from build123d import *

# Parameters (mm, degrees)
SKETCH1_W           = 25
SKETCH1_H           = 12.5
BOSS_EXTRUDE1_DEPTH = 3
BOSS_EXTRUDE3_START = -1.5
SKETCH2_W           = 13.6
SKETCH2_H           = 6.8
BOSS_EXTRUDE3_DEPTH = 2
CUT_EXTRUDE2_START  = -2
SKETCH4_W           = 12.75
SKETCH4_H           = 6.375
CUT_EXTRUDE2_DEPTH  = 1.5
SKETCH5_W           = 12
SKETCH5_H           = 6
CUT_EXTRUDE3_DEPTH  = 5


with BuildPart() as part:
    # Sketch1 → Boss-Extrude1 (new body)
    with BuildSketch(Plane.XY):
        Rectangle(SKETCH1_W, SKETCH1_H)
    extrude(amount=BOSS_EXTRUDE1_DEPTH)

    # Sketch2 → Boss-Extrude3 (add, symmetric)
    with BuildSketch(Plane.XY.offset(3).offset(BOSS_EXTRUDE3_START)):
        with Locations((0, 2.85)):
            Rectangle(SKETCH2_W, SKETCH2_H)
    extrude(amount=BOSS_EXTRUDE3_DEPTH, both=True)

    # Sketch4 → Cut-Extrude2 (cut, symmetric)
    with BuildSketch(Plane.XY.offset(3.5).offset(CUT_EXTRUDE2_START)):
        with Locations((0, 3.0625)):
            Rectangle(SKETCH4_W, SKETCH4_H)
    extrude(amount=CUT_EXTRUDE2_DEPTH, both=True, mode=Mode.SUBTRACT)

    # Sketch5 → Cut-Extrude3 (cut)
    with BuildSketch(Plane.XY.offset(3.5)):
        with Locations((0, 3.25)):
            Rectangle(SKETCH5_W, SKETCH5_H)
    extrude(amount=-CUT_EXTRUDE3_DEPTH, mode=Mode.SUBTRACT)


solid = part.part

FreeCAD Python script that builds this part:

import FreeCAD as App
import Part
import Sketcher

doc = App.newDocument("Part")
params = doc.addObject("Spreadsheet::Sheet", "Params")
for row, (alias, value) in enumerate([
    ("sketch1_width", "25 mm"),
    ("sketch1_height", "12.5 mm"),
    ("pad1_length", "3 mm"),
    ("sketch2_width", "13.6 mm"),
    ("sketch2_height", "6.8 mm"),
    ("pad2_length", "4 mm"),
    ("sketch3_width", "12.75 mm"),
    ("pocket1_length", "3 mm"),
    ("sketch4_width", "12 mm"),
    ("sketch4_height", "6 mm"),
    ("pocket2_length", "5 mm"),
], start=1):
    params.set(f"A{row}", alias)
    params.set(f"B{row}", "=" + value)
    params.setAlias(f"B{row}", alias)

body = doc.addObject("PartDesign::Body", "Body")

# Sketch on XY plane
sketch1 = body.newObject("Sketcher::SketchObject", "Sketch")
sketch1.AttachmentSupport = (doc.getObject("XY_Plane"), [""])
sketch1.MapMode = "FlatFace"
sketch1.addGeometry(Part.LineSegment(App.Vector(-12, 6, 0), App.Vector(-12, -6, 0)), False)
sketch1.addGeometry(Part.LineSegment(App.Vector(-12, -6, 0), App.Vector(12, -6, 0)), False)
sketch1.addGeometry(Part.LineSegment(App.Vector(12, -6, 0), App.Vector(12, 6, 0)), False)
sketch1.addGeometry(Part.LineSegment(App.Vector(12, 6, 0), App.Vector(-12, 6, 0)), False)
sketch1.addConstraint(Sketcher.Constraint("Coincident", 0, 2, 1, 1))
sketch1.addConstraint(Sketcher.Constraint("Coincident", 1, 2, 2, 1))
sketch1.addConstraint(Sketcher.Constraint("Coincident", 2, 2, 3, 1))
sketch1.addConstraint(Sketcher.Constraint("Coincident", 3, 2, 0, 1))
sketch1.addConstraint(Sketcher.Constraint("Vertical", 0))
sketch1.addConstraint(Sketcher.Constraint("Horizontal", 1))
sketch1.addConstraint(Sketcher.Constraint("Vertical", 2))
sketch1.addConstraint(Sketcher.Constraint("Horizontal", 3))
sketch1.addConstraint(Sketcher.Constraint("Symmetric", 0, 2, 2, 2, -1, 1))
sketch1.addConstraint(Sketcher.Constraint("DistanceX", 1, 1, 1, 2, 25.0))
sketch1.addConstraint(Sketcher.Constraint("DistanceY", 0, 2, 0, 1, 12.5))
sketch1.setExpression("Constraints[9]", "Params.sketch1_width")
sketch1.setExpression("Constraints[10]", "Params.sketch1_height")
pad1 = body.newObject("PartDesign::Pad", "Pad")
pad1.Profile = sketch1
pad1.setExpression("Length", "Params.pad1_length")

# Sketch on XY plane
sketch2 = body.newObject("Sketcher::SketchObject", "Sketch001")
sketch2.AttachmentSupport = (doc.getObject("XY_Plane"), [""])
sketch2.MapMode = "FlatFace"
sketch2.AttachmentOffset = App.Placement(App.Vector(0, 0, 1.5), App.Rotation())
sketch2.addGeometry(Part.LineSegment(App.Vector(-7, 6, 0), App.Vector(-7, -1, 0)), False)
sketch2.addGeometry(Part.LineSegment(App.Vector(-7, -1, 0), App.Vector(7, -1, 0)), False)
sketch2.addGeometry(Part.LineSegment(App.Vector(7, -1, 0), App.Vector(7, 6, 0)), False)
sketch2.addGeometry(Part.LineSegment(App.Vector(7, 6, 0), App.Vector(-7, 6, 0)), False)
sketch2.addConstraint(Sketcher.Constraint("Coincident", 0, 2, 1, 1))
sketch2.addConstraint(Sketcher.Constraint("Coincident", 1, 2, 2, 1))
sketch2.addConstraint(Sketcher.Constraint("Coincident", 2, 2, 3, 1))
sketch2.addConstraint(Sketcher.Constraint("Coincident", 3, 2, 0, 1))
sketch2.addConstraint(Sketcher.Constraint("Vertical", 0))
sketch2.addConstraint(Sketcher.Constraint("Horizontal", 1))
sketch2.addConstraint(Sketcher.Constraint("Vertical", 2))
sketch2.addConstraint(Sketcher.Constraint("Horizontal", 3))
sketch2.addConstraint(Sketcher.Constraint("DistanceX", 1, 1, 1, 2, 13.6))
sketch2.addConstraint(Sketcher.Constraint("DistanceY", 0, 2, 0, 1, 6.8))
sketch2.addConstraint(Sketcher.Constraint("DistanceX", 0, 2, -1, 1, 6.8))
sketch2.addConstraint(Sketcher.Constraint("DistanceY", 0, 2, -1, 1, 0.55))
sketch2.setExpression("Constraints[8]", "Params.sketch2_width")
sketch2.setExpression("Constraints[9]", "Params.sketch2_height")
pad2 = body.newObject("PartDesign::Pad", "Pad001")
pad2.Profile = sketch2
pad2.setExpression("Length", "Params.pad2_length")
pad2.Midplane = True

# Sketch on XY plane
sketch3 = body.newObject("Sketcher::SketchObject", "Sketch002")
sketch3.AttachmentSupport = (doc.getObject("XY_Plane"), [""])
sketch3.MapMode = "FlatFace"
sketch3.AttachmentOffset = App.Placement(App.Vector(0, 0, 1.5), App.Rotation())
sketch3.addGeometry(Part.LineSegment(App.Vector(-6, 6, 0), App.Vector(-6, 0, 0)), False)
sketch3.addGeometry(Part.LineSegment(App.Vector(-6, 0, 0), App.Vector(6, 0, 0)), False)
sketch3.addGeometry(Part.LineSegment(App.Vector(6, 0, 0), App.Vector(6, 6, 0)), False)
sketch3.addGeometry(Part.LineSegment(App.Vector(6, 6, 0), App.Vector(-6, 6, 0)), False)
sketch3.addConstraint(Sketcher.Constraint("Coincident", 0, 2, 1, 1))
sketch3.addConstraint(Sketcher.Constraint("Coincident", 1, 2, 2, 1))
sketch3.addConstraint(Sketcher.Constraint("Coincident", 2, 2, 3, 1))
sketch3.addConstraint(Sketcher.Constraint("Coincident", 3, 2, 0, 1))
sketch3.addConstraint(Sketcher.Constraint("Vertical", 0))
sketch3.addConstraint(Sketcher.Constraint("Horizontal", 1))
sketch3.addConstraint(Sketcher.Constraint("Vertical", 2))
sketch3.addConstraint(Sketcher.Constraint("Horizontal", 3))
sketch3.addConstraint(Sketcher.Constraint("DistanceX", 1, 1, 1, 2, 12.75))
sketch3.addConstraint(Sketcher.Constraint("DistanceY", 0, 2, 0, 1, 6.375))
sketch3.addConstraint(Sketcher.Constraint("DistanceY", -1, 1, 2, 2, 6.25))
sketch3.addConstraint(Sketcher.Constraint("DistanceX", 0, 2, -1, 1, 6.375))
sketch3.setExpression("Constraints[8]", "Params.sketch3_width")
pocket1 = body.newObject("PartDesign::Pocket", "Pocket")
pocket1.Profile = sketch3
pocket1.setExpression("Length", "Params.pocket1_length")
pocket1.Midplane = True

# Sketch on XY plane
sketch4 = body.newObject("Sketcher::SketchObject", "Sketch003")
sketch4.AttachmentSupport = (doc.getObject("XY_Plane"), [""])
sketch4.MapMode = "FlatFace"
sketch4.AttachmentOffset = App.Placement(App.Vector(0, 0, 3.5), App.Rotation())
sketch4.addGeometry(Part.LineSegment(App.Vector(-6, 6, 0), App.Vector(-6, 0, 0)), False)
sketch4.addGeometry(Part.LineSegment(App.Vector(-6, 0, 0), App.Vector(6, 0, 0)), False)
sketch4.addGeometry(Part.LineSegment(App.Vector(6, 0, 0), App.Vector(6, 6, 0)), False)
sketch4.addGeometry(Part.LineSegment(App.Vector(6, 6, 0), App.Vector(-6, 6, 0)), False)
sketch4.addConstraint(Sketcher.Constraint("Coincident", 0, 2, 1, 1))
sketch4.addConstraint(Sketcher.Constraint("Coincident", 1, 2, 2, 1))
sketch4.addConstraint(Sketcher.Constraint("Coincident", 2, 2, 3, 1))
sketch4.addConstraint(Sketcher.Constraint("Coincident", 3, 2, 0, 1))
sketch4.addConstraint(Sketcher.Constraint("Vertical", 0))
sketch4.addConstraint(Sketcher.Constraint("Horizontal", 1))
sketch4.addConstraint(Sketcher.Constraint("Vertical", 2))
sketch4.addConstraint(Sketcher.Constraint("Horizontal", 3))
sketch4.addConstraint(Sketcher.Constraint("DistanceX", 1, 1, 1, 2, 12.0))
sketch4.addConstraint(Sketcher.Constraint("DistanceY", 0, 2, 0, 1, 6.0))
sketch4.addConstraint(Sketcher.Constraint("DistanceX", 0, 2, -1, 1, 6.0))
sketch4.addConstraint(Sketcher.Constraint("DistanceY", -1, 1, 0, 2, 0.25))
sketch4.setExpression("Constraints[8]", "Params.sketch4_width")
sketch4.setExpression("Constraints[9]", "Params.sketch4_height")
pocket2 = body.newObject("PartDesign::Pocket", "Pocket001")
pocket2.Profile = sketch4
pocket2.setExpression("Length", "Params.pocket2_length")

doc.recompute()
